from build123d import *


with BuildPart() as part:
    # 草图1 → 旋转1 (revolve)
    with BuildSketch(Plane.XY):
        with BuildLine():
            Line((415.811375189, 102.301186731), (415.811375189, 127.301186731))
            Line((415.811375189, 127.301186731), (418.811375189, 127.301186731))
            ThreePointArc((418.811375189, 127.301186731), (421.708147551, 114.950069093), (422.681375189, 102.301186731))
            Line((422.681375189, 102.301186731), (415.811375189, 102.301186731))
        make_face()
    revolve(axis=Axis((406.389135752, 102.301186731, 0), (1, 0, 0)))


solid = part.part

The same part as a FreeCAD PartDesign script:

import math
import FreeCAD as App
import Part
import Sketcher
Q = App.Units.Quantity

doc = App.newDocument("Part")
body = doc.addObject("PartDesign::Body", "Body")

# Sketch on XY plane
sketch1 = body.newObject("Sketcher::SketchObject", "Sketch")
sketch1.AttachmentSupport = (doc.getObject("XY_Plane"), [""])
sketch1.MapMode = "FlatFace"
sketch1.addGeometry([
    Part.LineSegment(App.Vector(415.811375, 127.301187, 0), App.Vector(415.811375, 102.301187, 0)),
    Part.LineSegment(App.Vector(415.811375, 102.301187, 0), App.Vector(422.681375, 102.301187, 0)),
    Part.ArcOfCircle(Part.Circle(App.Vector(339.997021, 102.301187, 0), App.Vector(0, 0, 1), 82.684354), math.radians(0), math.radians(17.599085)),
    Part.LineSegment(App.Vector(418.811375, 127.301187, 0), App.Vector(415.811375, 127.301187, 0)),
], False)
sketch1.addGeometry(Part.LineSegment(App.Vector(339.997021, 102.301187, 0), App.Vector(422.681375, 102.301187, 0)), True)  # axis
sketch1.addConstraint([
    Sketcher.Constraint("Coincident", 0, 2, 1, 1),
    Sketcher.Constraint("Coincident", 1, 2, 2, 1),
    Sketcher.Constraint("Coincident", 2, 2, 3, 1),
    Sketcher.Constraint("Coincident", 3, 2, 0, 1),
    Sketcher.Constraint("Vertical", 0),
    Sketcher.Constraint("Horizontal", 1),
    Sketcher.Constraint("Horizontal", 3),
    Sketcher.Constraint("Horizontal", 4),
    Sketcher.Constraint("Coincident", 4, 1, 2, 3),
    Sketcher.Constraint("Coincident", 4, 2, 1, 2),
    Sketcher.Constraint("DistanceX", 3, 2, 3, 1, Q("3 mm")),
    Sketcher.Constraint("DistanceY", 0, 2, 0, 1, Q("25 mm")),
    Sketcher.Constraint("DistanceX", 1, 1, 1, 2, Q("6.87 mm")),
    Sketcher.Constraint("DistanceX", -1, 1, 2, 3, Q("339.997021 mm")),
    Sketcher.Constraint("DistanceY", -1, 1, 2, 3, Q("102.301187 mm")),
])
revolution = body.newObject("PartDesign::Revolution", "Revolution")
revolution.Profile = sketch1
revolution.ReferenceAxis = (sketch1, ["Axis0"])
revolution.Angle = 360

doc.recompute()
